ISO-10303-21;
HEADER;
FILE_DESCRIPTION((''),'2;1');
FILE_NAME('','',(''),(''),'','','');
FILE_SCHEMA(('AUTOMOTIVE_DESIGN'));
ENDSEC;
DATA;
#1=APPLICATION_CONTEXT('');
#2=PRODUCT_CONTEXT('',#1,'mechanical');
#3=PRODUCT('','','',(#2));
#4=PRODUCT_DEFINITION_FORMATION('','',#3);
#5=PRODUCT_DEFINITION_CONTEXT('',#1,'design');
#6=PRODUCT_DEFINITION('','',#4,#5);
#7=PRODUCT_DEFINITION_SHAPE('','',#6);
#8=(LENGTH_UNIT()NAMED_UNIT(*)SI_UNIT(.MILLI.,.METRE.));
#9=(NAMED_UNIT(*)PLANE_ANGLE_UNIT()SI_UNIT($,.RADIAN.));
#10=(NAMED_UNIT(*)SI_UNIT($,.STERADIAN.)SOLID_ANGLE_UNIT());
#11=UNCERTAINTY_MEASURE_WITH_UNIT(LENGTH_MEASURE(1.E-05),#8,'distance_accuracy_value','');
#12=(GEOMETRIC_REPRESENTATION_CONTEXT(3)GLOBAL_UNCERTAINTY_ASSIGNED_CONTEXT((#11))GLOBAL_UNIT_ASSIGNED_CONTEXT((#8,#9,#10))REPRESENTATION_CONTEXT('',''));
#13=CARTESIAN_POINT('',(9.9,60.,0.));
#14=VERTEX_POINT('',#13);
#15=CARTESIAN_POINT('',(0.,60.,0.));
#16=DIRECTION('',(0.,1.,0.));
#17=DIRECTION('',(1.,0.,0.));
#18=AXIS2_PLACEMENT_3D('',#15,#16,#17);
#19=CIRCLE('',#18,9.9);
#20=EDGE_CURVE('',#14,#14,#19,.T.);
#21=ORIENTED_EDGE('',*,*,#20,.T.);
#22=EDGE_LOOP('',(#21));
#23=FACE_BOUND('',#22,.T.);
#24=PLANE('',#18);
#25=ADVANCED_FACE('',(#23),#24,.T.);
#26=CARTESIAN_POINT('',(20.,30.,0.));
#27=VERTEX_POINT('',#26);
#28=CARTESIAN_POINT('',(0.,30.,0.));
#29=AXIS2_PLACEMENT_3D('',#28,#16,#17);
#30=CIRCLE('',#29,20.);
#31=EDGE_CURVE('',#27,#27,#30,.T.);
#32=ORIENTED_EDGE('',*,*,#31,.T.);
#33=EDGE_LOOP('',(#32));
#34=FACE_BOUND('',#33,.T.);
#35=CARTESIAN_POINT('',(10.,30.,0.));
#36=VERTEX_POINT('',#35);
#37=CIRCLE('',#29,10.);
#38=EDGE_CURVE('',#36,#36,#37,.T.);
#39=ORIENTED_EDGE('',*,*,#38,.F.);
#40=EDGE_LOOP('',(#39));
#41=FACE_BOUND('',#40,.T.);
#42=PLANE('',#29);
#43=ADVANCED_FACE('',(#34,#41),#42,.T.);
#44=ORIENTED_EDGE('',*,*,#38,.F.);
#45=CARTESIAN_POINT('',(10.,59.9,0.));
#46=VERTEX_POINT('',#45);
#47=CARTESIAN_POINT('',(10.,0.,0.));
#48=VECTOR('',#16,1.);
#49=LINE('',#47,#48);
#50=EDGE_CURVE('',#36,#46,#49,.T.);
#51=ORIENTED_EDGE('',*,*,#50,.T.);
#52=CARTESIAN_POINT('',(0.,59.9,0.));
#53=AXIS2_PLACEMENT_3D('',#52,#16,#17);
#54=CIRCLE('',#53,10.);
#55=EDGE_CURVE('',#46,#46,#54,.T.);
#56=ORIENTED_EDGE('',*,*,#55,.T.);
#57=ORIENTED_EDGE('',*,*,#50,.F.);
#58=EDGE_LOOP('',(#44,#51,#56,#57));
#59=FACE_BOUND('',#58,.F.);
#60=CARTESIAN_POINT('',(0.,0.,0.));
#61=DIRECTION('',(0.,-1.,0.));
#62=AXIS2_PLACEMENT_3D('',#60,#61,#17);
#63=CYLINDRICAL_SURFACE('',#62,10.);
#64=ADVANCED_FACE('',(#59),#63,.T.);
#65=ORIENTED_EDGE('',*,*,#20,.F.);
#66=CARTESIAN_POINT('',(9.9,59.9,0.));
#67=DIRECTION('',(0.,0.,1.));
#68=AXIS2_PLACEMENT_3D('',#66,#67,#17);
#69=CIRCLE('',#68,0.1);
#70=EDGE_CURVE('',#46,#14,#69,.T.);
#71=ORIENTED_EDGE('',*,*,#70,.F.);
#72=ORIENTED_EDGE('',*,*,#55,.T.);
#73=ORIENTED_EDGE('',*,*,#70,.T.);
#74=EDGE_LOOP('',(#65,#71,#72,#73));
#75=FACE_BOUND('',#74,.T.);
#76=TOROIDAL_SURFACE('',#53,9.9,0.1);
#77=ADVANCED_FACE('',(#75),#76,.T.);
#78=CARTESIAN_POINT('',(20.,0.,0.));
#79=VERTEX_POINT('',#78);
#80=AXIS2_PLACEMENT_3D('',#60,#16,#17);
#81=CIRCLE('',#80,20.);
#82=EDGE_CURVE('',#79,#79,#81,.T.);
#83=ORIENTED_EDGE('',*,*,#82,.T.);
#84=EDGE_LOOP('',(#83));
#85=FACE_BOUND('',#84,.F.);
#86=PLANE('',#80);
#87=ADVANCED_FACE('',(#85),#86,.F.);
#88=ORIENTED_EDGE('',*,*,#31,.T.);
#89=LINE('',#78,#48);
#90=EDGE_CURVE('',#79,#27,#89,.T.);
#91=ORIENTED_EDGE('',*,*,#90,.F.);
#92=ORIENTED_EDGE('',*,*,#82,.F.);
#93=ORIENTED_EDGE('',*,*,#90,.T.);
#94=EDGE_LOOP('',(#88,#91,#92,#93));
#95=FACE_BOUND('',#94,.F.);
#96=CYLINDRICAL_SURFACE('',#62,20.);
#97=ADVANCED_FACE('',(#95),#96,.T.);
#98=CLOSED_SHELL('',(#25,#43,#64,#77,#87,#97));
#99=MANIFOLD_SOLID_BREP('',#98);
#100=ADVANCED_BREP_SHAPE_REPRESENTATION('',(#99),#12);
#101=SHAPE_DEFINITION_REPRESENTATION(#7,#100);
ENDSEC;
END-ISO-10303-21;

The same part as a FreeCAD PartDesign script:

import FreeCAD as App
import Part
import Sketcher
Q = App.Units.Quantity


def edges_at(feature, points):
    """Names of the edges that pass closest to the given points."""
    edges = feature.Shape.Edges
    near = lambda p: min(range(len(edges)), key=lambda i: edges[i].distToShape(Part.Vertex(*p))[0])
    return sorted({f"Edge{near(p) + 1}" for p in points})

doc = App.newDocument("Part")
body = doc.addObject("PartDesign::Body", "Body")

# Sketch on XZ plane
sketch1 = doc.addObject("Sketcher::SketchObject", "Sketch")
body.addObject(sketch1)
sketch1.AttachmentSupport = (doc.XZ_Plane, [""])
sketch1.MapMode = "FlatFace"
sketch1.addGeometry([
    Part.Circle(App.Vector(0, 0, 0), App.Vector(0, 0, 1), 20),
    Part.Circle(App.Vector(0, 0, 0), App.Vector(0, 0, 1), 10),
], False)
sketch1.addConstraint([
    Sketcher.Constraint("Coincident", 0, 3, -1, 1),
    Sketcher.Constraint("Coincident", 1, 3, -1, 1),
    Sketcher.Constraint("Diameter", 0, Q("40 mm")),
    Sketcher.Constraint("Diameter", 1, Q("20 mm")),
])
pad1 = doc.addObject("PartDesign::Pad", "Pad")
body.addObject(pad1)
pad1.Profile = sketch1
pad1.Length = 30
pad1.Reversed = True

# Sketch on XZ plane
sketch2 = doc.addObject("Sketcher::SketchObject", "Sketch001")
body.addObject(sketch2)
sketch2.AttachmentSupport = (doc.XZ_Plane, [""])
sketch2.MapMode = "FlatFace"
sketch2.addGeometry(Part.Circle(App.Vector(0, 0, 0), App.Vector(0, 0, 1), 10), False)
sketch2.addConstraint([
    Sketcher.Constraint("Coincident", 0, 3, -1, 1),
    Sketcher.Constraint("Diameter", 0, Q("20 mm")),
])
pad2 = doc.addObject("PartDesign::Pad", "Pad001")
body.addObject(pad2)
pad2.Profile = sketch2
pad2.Length = 60
pad2.Reversed = True
doc.recompute()

fillet = doc.addObject("PartDesign::Fillet", "Fillet")
body.addObject(fillet)
fillet.Base = (pad2, edges_at(pad2, [(-9.323, 60, 3.616)]))
fillet.Radius = 0.1

doc.recompute()
